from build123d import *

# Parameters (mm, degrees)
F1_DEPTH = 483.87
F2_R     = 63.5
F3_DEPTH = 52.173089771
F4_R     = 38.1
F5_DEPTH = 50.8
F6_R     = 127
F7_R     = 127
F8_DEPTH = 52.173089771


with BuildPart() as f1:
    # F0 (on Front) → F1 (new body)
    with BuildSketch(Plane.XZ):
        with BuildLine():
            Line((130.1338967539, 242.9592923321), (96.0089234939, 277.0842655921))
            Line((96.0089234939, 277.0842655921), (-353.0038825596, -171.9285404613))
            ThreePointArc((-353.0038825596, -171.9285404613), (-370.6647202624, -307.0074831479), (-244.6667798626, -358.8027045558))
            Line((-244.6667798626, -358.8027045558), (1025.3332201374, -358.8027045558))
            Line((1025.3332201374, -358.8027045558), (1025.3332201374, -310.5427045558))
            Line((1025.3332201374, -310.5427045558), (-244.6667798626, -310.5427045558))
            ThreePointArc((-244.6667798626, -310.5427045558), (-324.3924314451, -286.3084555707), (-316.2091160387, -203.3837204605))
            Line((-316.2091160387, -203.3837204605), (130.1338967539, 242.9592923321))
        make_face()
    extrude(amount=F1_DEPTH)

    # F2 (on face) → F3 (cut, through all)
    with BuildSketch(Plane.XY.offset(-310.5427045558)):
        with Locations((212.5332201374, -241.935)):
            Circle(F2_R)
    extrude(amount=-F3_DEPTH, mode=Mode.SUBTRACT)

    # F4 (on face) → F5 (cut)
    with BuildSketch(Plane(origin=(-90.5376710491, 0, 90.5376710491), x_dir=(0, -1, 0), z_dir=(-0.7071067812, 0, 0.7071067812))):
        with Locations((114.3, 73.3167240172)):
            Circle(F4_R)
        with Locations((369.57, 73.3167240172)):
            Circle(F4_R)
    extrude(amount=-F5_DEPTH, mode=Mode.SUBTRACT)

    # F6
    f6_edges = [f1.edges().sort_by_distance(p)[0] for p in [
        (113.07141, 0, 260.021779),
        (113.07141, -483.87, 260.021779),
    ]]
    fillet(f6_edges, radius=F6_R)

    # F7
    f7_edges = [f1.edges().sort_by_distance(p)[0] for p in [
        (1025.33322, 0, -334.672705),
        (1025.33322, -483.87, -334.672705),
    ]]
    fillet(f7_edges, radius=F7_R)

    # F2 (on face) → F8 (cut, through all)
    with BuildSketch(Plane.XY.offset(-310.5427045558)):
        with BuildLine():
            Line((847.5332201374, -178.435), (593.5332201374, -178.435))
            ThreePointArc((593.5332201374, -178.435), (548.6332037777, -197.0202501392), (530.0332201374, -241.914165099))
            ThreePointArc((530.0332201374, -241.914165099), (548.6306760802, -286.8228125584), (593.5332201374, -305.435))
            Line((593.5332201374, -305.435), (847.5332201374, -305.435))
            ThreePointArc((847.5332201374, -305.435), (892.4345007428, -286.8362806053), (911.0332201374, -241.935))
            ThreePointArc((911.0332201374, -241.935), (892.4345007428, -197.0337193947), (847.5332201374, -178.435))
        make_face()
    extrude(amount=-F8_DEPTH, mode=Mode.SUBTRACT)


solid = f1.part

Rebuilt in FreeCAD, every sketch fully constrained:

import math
import FreeCAD as App
import Part
import Sketcher
Q = App.Units.Quantity


def edges_at(feature, points):
    """Names of the edges that pass closest to the given points."""
    edges = feature.Shape.Edges
    near = lambda p: min(range(len(edges)), key=lambda i: edges[i].distToShape(Part.Vertex(*p))[0])
    return sorted({f"Edge{near(p) + 1}" for p in points})

doc = App.newDocument("Part")
params = doc.addObject("Spreadsheet::Sheet", "Params")
for row, (alias, value) in enumerate([
    ("sketch1_radius", "4.4 in"),
    ("sketch1_width", "50 in"),
    ("sketch1_length", "25 in"),
    ("sketch1_height", "1.9 in"),
    ("sketch1_length2", "1.9 in"),
    ("pad1_length", "19.05 in"),
    ("sketch2_diameter", "5 in"),
    ("sketch3_diameter", "3 in"),
    ("pocket2_length", "2 in"),
    ("fillet_radius", "5 in"),
    ("fillet2_radius", "5 in"),
    ("sketch4_radius", "2.5 in"),
    ("sketch4_width", "10 in"),
], start=1):
    params.set(f"A{row}", alias)
    params.set(f"B{row}", "=" + value)
    params.setAlias(f"B{row}", alias)

body = doc.addObject("PartDesign::Body", "Body")

# Sketch on XZ plane
sketch1 = body.newObject("Sketcher::SketchObject", "Sketch")
sketch1.AttachmentSupport = (doc.getObject("XZ_Plane"), [""])
sketch1.MapMode = "FlatFace"
sketch1.addGeometry([
    Part.LineSegment(App.Vector(130.133897, 242.959292, 0), App.Vector(96.008923, 277.084266, 0)),  # 0
    Part.LineSegment(App.Vector(96.008923, 277.084266, 0), App.Vector(-353.003883, -171.92854, 0)),  # 1
    Part.ArcOfCircle(Part.Circle(App.Vector(-273.977629, -250.954794, 0), App.Vector(0, 0, 1), 111.76), math.radians(135), math.radians(285.204562)),  # 2
    Part.LineSegment(App.Vector(-244.66678, -358.802705, 0), App.Vector(1025.33322, -358.802705, 0)),  # 3
    Part.LineSegment(App.Vector(1025.33322, -358.802705, 0), App.Vector(1025.33322, -310.542705, 0)),  # 4
    Part.LineSegment(App.Vector(1025.33322, -310.542705, 0), App.Vector(-244.66678, -310.542705, 0)),  # 5
    Part.ArcOfCircle(Part.Circle(App.Vector(-269.759113, -249.833723, 0), App.Vector(0, 0, 1), 65.690224), math.radians(135), math.radians(292.456365)),  # 6
    Part.LineSegment(App.Vector(-316.209116, -203.38372, 0), App.Vector(130.133897, 242.959292, 0)),  # 7
], False)
sketch1.addConstraint([
    Sketcher.Constraint("Coincident", 0, 2, 1, 1),
    Sketcher.Constraint("Tangent", 1, 2, 2, 1),
    Sketcher.Constraint("Coincident", 2, 2, 3, 1),
    Sketcher.Constraint("Coincident", 3, 2, 4, 1),
    Sketcher.Constraint("Coincident", 4, 2, 5, 1),
    Sketcher.Constraint("Coincident", 5, 2, 6, 2),
    Sketcher.Constraint("Tangent", 6, 1, 7, 1),
    Sketcher.Constraint("Coincident", 7, 2, 0, 1),
    Sketcher.Constraint("Horizontal", 3),
    Sketcher.Constraint("Vertical", 4),
    Sketcher.Constraint("Horizontal", 5),
    Sketcher.Constraint("Perpendicular", 0, 1),
    Sketcher.Constraint("Parallel", 1, 7),
    Sketcher.Constraint("Vertical", 2, 2, 5, 2),
    Sketcher.Constraint("Radius", 2, Q("4.4 in")),
    Sketcher.Constraint("DistanceX", 3, 1, 3, 2, Q("50 in")),
    Sketcher.Constraint("Distance", 1, Q("25 in")),
    Sketcher.Constraint("DistanceY", 4, 1, 4, 2, Q("1.9 in")),
    Sketcher.Constraint("Angle", 0, Q("135 deg")),
    Sketcher.Constraint("Distance", 0, Q("1.9 in")),
    Sketcher.Constraint("Radius", 6, 65.690224),
    Sketcher.Constraint("DistanceY", 6, 3, 7, 2, Q("19.4012998 in")),
    Sketcher.Constraint("DistanceX", 2, 3, -1, 1, 273.977629),
    Sketcher.Constraint("DistanceY", 1, 2, -1, 1, 171.92854),
])
sketch1.setExpression("Constraints[14]", "Params.sketch1_radius")
sketch1.setExpression("Constraints[15]", "Params.sketch1_width")
sketch1.setExpression("Constraints[16]", "Params.sketch1_length")
sketch1.setExpression("Constraints[17]", "Params.sketch1_height")
sketch1.setExpression("Constraints[19]", "Params.sketch1_length2")
pad1 = body.newObject("PartDesign::Pad", "Pad")
pad1.Profile = sketch1
pad1.setExpression("Length", "Params.pad1_length")

# Sketch on XY plane
sketch2 = body.newObject("Sketcher::SketchObject", "Sketch001")
sketch2.AttachmentSupport = (doc.getObject("XY_Plane"), [""])
sketch2.MapMode = "FlatFace"
sketch2.AttachmentOffset = App.Placement(App.Vector(0, 0, -310.542705), App.Rotation())
sketch2.addGeometry(Part.Circle(App.Vector(212.53322, -241.935, 0), App.Vector(0, 0, 1), 63.5), False)
sketch2.addConstraint([
    Sketcher.Constraint("Diameter", 0, Q("5 in")),
    Sketcher.Constraint("DistanceY", 0, 3, -1, 1, Q("9.525 in")),
    Sketcher.Constraint("DistanceX", -1, 1, 0, 3, 212.53322),
])
sketch2.setExpression("Constraints[0]", "Params.sketch2_diameter")
pocket1 = body.newObject("PartDesign::Pocket", "Pocket")
pocket1.Profile = sketch2
pocket1.Type = "ThroughAll"

# Sketch on an angled plane
sketch3 = body.newObject("Sketcher::SketchObject", "Sketch002")
sketch3.Placement = App.Placement(App.Vector(-90.537671, 0, 90.537671), App.Rotation(App.Vector(0, -1, 0), App.Vector(0.707106781, 0, 0.707106781), App.Vector(-0.707106781, 0, 0.707106781), "ZXY"))
sketch3.addGeometry([
    Part.Circle(App.Vector(114.3, 73.316724, 0), App.Vector(0, 0, 1), 38.1),
    Part.Circle(App.Vector(369.57, 73.316724, 0), App.Vector(0, 0, 1), 38.1),
], False)
sketch3.addConstraint([
    Sketcher.Constraint("Equal", 0, 1),
    Sketcher.Constraint("Horizontal", 0, 3, 1, 3),
    Sketcher.Constraint("Diameter", 0, Q("3 in")),
    Sketcher.Constraint("DistanceX", -1, 1, 0, 3, Q("4.5 in")),
    Sketcher.Constraint("DistanceX", -1, 1, 1, 3, Q("14.55 in")),
    Sketcher.Constraint("DistanceY", -1, 1, 0, 3, 73.316724),
])
sketch3.setExpression("Constraints[2]", "Params.sketch3_diameter")
pocket2 = body.newObject("PartDesign::Pocket", "Pocket001")
pocket2.Profile = sketch3
pocket2.setExpression("Length", "Params.pocket2_length")
doc.recompute()

fillet = body.newObject("PartDesign::Fillet", "Fillet")
fillet.Base = (pocket2, edges_at(pocket2, [(113.071, 0, 260.022), (113.071, -483.87, 260.022)]))
fillet.setExpression("Radius", "Params.fillet_radius")
doc.recompute()

fillet2 = body.newObject("PartDesign::Fillet", "Fillet001")
fillet2.Base = (fillet, edges_at(fillet, [(1025.333, 0, -334.673), (1025.333, -483.87, -334.673)]))
fillet2.setExpression("Radius", "Params.fillet2_radius")

# Sketch on XY plane
sketch4 = body.newObject("Sketcher::SketchObject", "Sketch003")
sketch4.AttachmentSupport = (doc.getObject("XY_Plane"), [""])
sketch4.MapMode = "FlatFace"
sketch4.AttachmentOffset = App.Placement(App.Vector(0, 0, -310.542705), App.Rotation())
sketch4.addGeometry([
    Part.LineSegment(App.Vector(847.53322, -178.435, 0), App.Vector(593.53322, -178.435, 0)),  # 0
    Part.ArcOfCircle(Part.Circle(App.Vector(593.512389, -241.914165, 0), App.Vector(0, 0, 1), 63.479169), math.radians(89.981198), math.radians(180)),  # 1
    Part.ArcOfCircle(Part.Circle(App.Vector(593.554058, -241.914165, 0), App.Vector(0, 0, 1), 63.520838), math.radians(180), math.radians(269.981204)),  # 2
    Part.LineSegment(App.Vector(593.53322, -305.435, 0), App.Vector(847.53322, -305.435, 0)),  # 3
    Part.ArcOfCircle(Part.Circle(App.Vector(847.53322, -241.935, 0), App.Vector(0, 0, 1), 63.5), math.radians(-90), math.radians(90)),  # 4
], False)
sketch4.addConstraint([
    Sketcher.Constraint("Coincident", 0, 2, 1, 1),
    Sketcher.Constraint("Tangent", 1, 2, 2, 1),
    Sketcher.Constraint("Coincident", 2, 2, 3, 1),
    Sketcher.Constraint("Tangent", 3, 2, 4, 1),
    Sketcher.Constraint("Tangent", 4, 2, 0, 1),
    Sketcher.Constraint("Horizontal", 0),
    Sketcher.Constraint("Horizontal", 3),
    Sketcher.Constraint("Horizontal", 1, 3, 2, 3),
    Sketcher.Constraint("Vertical", 0, 2, 2, 2),
    Sketcher.Constraint("Radius", 4, Q("2.5 in")),
    Sketcher.Constraint("DistanceX", 0, 2, 0, 1, Q("10 in")),
    Sketcher.Constraint("DistanceX", 1, 2, 0, 2, Q("2.5 in")),
    Sketcher.Constraint("DistanceY", 4, 3, -1, 1, Q("9.525 in")),
    Sketcher.Constraint("Radius", 1, 63.479169),
    Sketcher.Constraint("DistanceX", -1, 1, 1, 3, 593.512389),
])
sketch4.setExpression("Constraints[9]", "Params.sketch4_radius")
sketch4.setExpression("Constraints[10]", "Params.sketch4_width")
pocket3 = body.newObject("PartDesign::Pocket", "Pocket002")
pocket3.Profile = sketch4
pocket3.Type = "ThroughAll"

doc.recompute()
